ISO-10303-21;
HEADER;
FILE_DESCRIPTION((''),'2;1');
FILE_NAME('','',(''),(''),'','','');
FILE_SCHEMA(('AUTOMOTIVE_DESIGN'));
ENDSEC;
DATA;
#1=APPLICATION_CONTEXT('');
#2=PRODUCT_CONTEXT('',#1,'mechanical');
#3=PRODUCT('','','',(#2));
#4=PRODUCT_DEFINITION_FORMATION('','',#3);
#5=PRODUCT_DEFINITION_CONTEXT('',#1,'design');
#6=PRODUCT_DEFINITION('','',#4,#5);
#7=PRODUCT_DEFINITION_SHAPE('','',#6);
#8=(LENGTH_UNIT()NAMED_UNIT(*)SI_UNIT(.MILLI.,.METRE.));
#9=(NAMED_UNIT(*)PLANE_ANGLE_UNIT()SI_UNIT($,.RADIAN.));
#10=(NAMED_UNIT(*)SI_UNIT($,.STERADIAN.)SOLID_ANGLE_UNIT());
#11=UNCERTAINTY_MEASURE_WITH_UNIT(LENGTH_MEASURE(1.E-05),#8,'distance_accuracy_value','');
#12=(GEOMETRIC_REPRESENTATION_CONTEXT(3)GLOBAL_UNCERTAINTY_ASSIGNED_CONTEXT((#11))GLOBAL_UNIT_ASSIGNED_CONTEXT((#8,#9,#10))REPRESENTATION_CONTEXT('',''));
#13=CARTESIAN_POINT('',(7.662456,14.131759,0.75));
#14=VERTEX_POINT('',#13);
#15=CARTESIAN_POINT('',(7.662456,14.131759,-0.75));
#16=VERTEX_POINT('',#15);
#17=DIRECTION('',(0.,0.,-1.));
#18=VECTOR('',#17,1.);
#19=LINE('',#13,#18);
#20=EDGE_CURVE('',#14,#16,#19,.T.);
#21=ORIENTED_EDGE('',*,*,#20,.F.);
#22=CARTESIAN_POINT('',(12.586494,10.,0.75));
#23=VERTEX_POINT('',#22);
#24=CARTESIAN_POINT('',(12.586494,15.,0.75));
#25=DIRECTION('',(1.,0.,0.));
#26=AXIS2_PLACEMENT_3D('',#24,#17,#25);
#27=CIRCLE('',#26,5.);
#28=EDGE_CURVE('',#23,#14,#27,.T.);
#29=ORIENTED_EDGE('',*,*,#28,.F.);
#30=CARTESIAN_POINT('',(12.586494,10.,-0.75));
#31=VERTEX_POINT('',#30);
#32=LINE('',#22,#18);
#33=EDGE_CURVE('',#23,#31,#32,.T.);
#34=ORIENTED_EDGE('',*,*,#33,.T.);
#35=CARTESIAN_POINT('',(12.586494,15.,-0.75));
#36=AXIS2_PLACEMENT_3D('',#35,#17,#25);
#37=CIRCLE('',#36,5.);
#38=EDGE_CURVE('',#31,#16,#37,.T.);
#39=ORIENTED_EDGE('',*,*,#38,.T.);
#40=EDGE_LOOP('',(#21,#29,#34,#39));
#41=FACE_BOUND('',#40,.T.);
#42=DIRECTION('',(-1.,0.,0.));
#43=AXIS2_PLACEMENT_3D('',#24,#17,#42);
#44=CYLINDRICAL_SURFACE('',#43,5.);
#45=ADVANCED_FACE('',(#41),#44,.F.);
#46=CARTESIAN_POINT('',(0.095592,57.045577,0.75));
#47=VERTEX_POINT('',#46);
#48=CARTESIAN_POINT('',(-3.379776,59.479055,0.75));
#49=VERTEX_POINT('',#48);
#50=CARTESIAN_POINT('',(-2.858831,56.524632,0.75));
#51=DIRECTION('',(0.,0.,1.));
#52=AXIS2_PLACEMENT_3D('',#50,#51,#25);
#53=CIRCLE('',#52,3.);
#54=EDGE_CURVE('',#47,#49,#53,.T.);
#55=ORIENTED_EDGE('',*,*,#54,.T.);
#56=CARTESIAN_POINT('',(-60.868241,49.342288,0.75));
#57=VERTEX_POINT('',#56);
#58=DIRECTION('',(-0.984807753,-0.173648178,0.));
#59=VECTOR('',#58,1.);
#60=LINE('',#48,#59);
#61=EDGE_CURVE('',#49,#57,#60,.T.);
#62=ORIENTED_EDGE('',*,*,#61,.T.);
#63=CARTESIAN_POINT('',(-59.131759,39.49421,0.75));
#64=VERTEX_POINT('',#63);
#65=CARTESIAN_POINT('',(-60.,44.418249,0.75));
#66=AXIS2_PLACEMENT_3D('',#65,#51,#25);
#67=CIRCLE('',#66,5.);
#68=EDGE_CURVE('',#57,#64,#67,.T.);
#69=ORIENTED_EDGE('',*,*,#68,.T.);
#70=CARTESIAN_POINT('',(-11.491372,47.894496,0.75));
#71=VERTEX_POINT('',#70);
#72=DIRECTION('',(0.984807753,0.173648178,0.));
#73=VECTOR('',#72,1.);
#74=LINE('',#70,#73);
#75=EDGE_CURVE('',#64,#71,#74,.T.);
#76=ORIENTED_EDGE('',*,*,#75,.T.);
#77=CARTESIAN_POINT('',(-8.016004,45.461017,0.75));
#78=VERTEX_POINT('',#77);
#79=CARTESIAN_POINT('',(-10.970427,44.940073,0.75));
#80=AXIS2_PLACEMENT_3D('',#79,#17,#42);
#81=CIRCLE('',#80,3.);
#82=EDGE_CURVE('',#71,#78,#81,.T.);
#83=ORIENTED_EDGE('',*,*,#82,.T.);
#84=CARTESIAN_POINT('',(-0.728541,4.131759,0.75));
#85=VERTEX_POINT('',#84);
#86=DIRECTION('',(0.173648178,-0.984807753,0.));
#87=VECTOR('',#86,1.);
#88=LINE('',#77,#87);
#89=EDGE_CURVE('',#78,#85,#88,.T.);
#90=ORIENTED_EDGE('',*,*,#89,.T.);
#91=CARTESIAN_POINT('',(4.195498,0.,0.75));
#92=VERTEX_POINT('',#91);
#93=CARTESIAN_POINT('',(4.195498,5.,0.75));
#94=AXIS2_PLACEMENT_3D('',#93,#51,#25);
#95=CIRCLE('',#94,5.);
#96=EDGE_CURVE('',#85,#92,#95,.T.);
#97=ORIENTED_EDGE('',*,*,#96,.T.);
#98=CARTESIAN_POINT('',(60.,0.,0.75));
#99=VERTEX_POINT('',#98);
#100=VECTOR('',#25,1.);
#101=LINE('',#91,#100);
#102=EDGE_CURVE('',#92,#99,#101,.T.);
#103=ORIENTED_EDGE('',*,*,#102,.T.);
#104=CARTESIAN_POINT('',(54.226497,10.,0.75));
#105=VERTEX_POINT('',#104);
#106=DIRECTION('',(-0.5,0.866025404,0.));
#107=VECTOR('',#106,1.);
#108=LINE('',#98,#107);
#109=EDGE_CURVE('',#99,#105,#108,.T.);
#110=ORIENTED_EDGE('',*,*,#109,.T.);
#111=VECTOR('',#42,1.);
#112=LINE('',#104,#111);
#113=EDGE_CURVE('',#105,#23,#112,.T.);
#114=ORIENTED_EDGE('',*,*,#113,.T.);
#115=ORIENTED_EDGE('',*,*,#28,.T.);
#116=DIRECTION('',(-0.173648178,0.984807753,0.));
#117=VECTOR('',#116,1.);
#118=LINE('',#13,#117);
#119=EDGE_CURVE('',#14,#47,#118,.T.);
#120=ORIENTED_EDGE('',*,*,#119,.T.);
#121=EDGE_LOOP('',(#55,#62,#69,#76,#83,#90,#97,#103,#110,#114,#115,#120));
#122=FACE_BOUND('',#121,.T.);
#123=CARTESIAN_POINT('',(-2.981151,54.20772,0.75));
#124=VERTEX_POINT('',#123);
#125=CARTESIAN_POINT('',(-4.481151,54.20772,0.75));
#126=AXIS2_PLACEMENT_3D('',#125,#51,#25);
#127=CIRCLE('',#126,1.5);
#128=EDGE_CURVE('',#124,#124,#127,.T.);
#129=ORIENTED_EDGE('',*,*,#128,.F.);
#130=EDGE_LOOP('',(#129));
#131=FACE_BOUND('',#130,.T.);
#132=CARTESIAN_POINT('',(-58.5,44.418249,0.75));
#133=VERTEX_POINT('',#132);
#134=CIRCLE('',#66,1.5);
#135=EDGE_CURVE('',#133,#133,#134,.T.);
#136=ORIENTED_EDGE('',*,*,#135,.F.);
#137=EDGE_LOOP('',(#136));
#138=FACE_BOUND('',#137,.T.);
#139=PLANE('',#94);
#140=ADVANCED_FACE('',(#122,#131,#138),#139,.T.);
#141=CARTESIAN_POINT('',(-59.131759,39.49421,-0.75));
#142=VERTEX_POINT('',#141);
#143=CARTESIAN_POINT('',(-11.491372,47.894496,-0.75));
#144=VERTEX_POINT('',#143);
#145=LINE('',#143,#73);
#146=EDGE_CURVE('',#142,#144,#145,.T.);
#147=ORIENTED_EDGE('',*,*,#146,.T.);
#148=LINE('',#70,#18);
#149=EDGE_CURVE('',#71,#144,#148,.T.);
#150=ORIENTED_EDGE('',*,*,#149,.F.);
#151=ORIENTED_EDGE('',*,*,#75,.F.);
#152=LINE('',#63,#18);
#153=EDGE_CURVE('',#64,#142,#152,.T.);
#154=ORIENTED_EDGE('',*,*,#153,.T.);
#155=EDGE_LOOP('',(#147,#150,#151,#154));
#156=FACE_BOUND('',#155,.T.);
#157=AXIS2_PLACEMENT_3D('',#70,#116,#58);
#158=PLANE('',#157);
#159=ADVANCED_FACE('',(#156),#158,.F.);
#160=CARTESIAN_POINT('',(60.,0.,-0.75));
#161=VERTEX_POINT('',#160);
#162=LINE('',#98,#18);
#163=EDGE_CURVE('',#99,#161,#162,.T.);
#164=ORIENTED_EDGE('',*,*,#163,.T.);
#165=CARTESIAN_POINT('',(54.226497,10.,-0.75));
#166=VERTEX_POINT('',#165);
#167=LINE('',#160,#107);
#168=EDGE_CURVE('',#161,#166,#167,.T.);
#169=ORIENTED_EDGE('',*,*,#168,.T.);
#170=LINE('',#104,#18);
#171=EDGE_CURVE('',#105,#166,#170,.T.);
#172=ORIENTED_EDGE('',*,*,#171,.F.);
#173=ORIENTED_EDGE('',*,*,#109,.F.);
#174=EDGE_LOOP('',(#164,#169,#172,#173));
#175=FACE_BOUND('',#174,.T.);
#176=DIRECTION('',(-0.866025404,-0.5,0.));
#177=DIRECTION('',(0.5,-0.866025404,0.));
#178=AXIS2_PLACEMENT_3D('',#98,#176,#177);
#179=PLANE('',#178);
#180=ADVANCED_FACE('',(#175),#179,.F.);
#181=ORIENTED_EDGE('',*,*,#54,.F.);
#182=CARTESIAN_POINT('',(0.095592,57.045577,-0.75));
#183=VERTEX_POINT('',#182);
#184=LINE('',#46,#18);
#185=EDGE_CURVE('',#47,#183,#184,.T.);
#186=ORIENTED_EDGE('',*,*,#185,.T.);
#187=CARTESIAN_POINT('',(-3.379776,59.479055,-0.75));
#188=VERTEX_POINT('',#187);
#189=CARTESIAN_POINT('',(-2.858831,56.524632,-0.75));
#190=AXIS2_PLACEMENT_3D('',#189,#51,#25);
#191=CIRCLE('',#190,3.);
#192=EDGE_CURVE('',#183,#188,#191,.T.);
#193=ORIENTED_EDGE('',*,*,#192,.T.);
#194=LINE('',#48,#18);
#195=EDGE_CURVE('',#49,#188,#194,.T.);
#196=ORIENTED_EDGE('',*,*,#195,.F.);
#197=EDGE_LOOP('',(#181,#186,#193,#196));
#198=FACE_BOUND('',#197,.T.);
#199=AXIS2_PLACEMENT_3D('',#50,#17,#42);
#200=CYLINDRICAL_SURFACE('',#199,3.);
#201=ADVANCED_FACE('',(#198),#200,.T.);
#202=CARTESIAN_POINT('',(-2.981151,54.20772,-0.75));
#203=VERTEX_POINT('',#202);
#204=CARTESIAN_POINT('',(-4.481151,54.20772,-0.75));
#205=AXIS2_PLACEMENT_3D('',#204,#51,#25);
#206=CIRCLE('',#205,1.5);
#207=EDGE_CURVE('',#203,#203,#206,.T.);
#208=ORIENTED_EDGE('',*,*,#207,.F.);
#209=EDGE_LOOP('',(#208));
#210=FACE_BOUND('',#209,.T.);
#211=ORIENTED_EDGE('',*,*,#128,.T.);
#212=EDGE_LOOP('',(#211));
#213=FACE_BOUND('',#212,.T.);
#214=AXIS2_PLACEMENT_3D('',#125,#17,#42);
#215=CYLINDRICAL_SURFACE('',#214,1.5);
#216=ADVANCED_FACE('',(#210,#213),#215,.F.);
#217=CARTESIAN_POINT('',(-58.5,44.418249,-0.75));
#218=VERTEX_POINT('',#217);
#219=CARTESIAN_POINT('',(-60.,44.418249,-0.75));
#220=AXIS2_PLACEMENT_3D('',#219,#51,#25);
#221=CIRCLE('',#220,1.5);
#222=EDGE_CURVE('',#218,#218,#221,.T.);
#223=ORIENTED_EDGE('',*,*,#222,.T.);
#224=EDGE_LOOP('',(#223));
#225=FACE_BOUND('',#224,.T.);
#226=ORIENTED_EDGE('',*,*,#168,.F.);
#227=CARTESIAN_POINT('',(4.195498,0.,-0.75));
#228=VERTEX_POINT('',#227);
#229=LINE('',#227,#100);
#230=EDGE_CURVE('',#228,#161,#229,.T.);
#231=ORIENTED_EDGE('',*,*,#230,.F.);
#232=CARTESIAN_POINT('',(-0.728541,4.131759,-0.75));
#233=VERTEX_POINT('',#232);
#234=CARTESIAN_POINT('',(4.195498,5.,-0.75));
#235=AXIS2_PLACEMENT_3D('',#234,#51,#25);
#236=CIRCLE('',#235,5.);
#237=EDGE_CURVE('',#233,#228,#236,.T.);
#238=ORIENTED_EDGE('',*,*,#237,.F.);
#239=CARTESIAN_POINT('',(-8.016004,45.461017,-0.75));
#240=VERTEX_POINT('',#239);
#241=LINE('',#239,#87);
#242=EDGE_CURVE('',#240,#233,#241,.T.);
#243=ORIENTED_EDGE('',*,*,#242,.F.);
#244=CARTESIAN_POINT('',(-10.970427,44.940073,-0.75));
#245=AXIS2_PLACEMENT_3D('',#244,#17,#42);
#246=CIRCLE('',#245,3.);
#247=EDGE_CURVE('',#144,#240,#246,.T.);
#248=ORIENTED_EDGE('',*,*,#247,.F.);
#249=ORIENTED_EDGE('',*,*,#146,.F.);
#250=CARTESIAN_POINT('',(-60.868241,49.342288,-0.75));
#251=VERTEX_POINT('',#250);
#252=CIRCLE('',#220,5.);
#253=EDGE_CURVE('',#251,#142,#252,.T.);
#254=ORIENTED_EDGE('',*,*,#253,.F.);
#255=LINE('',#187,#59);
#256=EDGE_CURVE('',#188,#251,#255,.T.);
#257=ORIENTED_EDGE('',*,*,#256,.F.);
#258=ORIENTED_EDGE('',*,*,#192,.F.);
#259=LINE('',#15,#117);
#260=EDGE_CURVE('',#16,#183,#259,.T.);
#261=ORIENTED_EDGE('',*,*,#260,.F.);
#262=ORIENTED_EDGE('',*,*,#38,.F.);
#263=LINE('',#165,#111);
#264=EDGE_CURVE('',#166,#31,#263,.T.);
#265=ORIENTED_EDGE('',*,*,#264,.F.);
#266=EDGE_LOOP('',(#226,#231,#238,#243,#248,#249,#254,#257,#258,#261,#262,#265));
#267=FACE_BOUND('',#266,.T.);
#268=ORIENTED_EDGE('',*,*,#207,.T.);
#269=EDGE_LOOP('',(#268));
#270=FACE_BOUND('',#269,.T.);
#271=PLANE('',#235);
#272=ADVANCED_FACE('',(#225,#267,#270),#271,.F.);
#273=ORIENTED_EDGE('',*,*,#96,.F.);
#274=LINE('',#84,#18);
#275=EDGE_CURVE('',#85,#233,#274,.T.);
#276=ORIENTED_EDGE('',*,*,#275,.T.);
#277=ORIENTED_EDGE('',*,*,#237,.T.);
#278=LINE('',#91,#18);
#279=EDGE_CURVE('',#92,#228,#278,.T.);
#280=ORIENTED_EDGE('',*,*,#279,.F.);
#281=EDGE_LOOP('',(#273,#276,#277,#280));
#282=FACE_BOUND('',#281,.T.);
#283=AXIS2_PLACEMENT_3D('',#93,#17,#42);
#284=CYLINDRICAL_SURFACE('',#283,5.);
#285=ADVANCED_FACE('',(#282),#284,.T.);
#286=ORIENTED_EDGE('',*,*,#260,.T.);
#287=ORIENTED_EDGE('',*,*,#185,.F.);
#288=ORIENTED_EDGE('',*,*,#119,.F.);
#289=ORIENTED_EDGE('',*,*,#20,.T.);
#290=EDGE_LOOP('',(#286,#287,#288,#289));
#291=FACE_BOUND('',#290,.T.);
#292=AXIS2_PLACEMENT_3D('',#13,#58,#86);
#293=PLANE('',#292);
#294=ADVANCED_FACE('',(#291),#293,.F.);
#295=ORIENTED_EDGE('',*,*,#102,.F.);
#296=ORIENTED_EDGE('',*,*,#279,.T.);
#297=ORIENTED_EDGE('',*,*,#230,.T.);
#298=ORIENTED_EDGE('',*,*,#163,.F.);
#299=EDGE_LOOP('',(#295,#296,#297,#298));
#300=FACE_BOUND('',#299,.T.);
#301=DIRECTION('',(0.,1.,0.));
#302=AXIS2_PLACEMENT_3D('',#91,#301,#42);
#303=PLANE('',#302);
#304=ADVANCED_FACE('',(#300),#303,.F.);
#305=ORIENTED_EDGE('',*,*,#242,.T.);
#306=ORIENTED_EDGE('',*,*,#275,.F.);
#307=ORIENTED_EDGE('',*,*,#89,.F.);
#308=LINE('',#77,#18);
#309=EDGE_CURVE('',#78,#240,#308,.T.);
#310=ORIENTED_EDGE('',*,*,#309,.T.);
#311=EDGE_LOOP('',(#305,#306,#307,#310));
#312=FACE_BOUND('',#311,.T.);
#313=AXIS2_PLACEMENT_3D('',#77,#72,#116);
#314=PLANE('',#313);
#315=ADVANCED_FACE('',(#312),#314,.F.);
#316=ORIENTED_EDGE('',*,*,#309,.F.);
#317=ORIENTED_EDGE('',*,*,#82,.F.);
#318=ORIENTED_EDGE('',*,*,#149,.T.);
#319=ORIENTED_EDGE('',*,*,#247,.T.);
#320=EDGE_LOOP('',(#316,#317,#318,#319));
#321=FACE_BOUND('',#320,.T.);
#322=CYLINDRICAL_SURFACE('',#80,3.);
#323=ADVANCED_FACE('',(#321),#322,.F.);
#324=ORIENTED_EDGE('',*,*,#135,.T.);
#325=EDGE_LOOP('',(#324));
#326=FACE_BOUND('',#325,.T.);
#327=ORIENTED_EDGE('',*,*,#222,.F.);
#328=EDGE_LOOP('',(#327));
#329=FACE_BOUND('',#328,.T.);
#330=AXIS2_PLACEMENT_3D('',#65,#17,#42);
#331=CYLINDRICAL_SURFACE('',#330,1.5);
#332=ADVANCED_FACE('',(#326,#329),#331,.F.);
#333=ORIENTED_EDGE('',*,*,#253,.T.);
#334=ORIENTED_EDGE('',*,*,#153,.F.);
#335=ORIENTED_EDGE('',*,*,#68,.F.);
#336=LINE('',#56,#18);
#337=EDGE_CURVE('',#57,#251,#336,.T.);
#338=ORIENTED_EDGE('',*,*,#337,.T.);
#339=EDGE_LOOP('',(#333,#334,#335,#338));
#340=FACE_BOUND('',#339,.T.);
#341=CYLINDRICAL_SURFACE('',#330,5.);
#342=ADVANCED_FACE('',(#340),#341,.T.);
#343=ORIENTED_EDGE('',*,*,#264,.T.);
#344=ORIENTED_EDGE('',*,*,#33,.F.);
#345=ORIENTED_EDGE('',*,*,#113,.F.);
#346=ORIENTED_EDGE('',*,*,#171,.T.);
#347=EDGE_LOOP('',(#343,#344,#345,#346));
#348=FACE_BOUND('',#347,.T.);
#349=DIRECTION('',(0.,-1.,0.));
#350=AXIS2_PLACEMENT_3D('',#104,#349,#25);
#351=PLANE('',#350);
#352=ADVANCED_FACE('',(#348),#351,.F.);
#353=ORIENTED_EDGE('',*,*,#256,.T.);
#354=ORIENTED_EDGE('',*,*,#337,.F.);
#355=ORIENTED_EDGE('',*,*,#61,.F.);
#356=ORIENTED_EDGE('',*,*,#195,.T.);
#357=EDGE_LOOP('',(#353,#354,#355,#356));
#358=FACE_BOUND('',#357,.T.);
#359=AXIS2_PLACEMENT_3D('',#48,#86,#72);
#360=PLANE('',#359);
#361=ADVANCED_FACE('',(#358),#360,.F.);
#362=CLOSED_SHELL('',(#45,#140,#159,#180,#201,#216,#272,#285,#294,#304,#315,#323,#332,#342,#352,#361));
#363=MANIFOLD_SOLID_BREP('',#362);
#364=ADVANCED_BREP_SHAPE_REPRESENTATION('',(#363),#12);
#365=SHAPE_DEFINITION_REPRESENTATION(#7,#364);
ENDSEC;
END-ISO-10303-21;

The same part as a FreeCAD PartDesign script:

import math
import FreeCAD as App
import Part
import Sketcher
from FreeCAD import Vector
Q = App.Units.Quantity

doc = App.newDocument("Part")
params = doc.addObject("Spreadsheet::Sheet", "Params")
for row, (alias, value) in enumerate([
    ("sketch1_diameter", "3 mm"),
    ("sketch1_radius", "5 mm"),
    ("sketch1_radius2", "3 mm"),
    ("pad1_length", "1.5 mm"),
], start=1):
    params.set(f"A{row}", alias)
    params.set(f"B{row}", "=" + value)
    params.setAlias(f"B{row}", alias)

body = doc.addObject("PartDesign::Body", "Body")

# Sketch on XY plane
sketch1 = doc.addObject("Sketcher::SketchObject", "Sketch")
body.addObject(sketch1)
sketch1.AttachmentSupport = (doc.XY_Plane, [""])
sketch1.MapMode = "FlatFace"
sketch1.addGeometry(Part.LineSegment(Vector(4.2, 0, 0), Vector(60, 0, 0)), False)
sketch1.addGeometry(Part.LineSegment(Vector(60, 0, 0), Vector(54.2, 10, 0)), False)
sketch1.addGeometry(Part.LineSegment(Vector(54.2, 10, 0), Vector(12.6, 10, 0)), False)
sketch1.addGeometry(Part.ArcOfCircle(Part.Circle(Vector(12.6, 15, 0), Vector(0, 0, 1), 5), math.radians(-170), math.radians(-90)), False)
sketch1.addGeometry(Part.LineSegment(Vector(7.7, 14.1, 0), Vector(0.1, 57, 0)), False)
sketch1.addGeometry(Part.ArcOfCircle(Part.Circle(Vector(-2.9, 56.5, 0), Vector(0, 0, 1), 3), math.radians(10), math.radians(100)), False)
sketch1.addGeometry(Part.LineSegment(Vector(-3.4, 59.5, 0), Vector(-60.9, 49.3, 0)), False)
sketch1.addGeometry(Part.ArcOfCircle(Part.Circle(Vector(-60, 44.4, 0), Vector(0, 0, 1), 5), math.radians(100), math.radians(280)), False)
sketch1.addGeometry(Part.LineSegment(Vector(-59.1, 39.5, 0), Vector(-11.5, 47.9, 0)), False)
sketch1.addGeometry(Part.ArcOfCircle(Part.Circle(Vector(-11, 44.9, 0), Vector(0, 0, 1), 3), math.radians(10), math.radians(100)), False)
sketch1.addGeometry(Part.LineSegment(Vector(-8, 45.5, 0), Vector(-0.7, 4.1, 0)), False)
sketch1.addGeometry(Part.ArcOfCircle(Part.Circle(Vector(4.2, 5, 0), Vector(0, 0, 1), 5), math.radians(-170), math.radians(-90)), False)
sketch1.addGeometry(Part.Circle(Vector(-60, 44.4, 0), Vector(0, 0, 1), 1.5), False)
sketch1.addGeometry(Part.Circle(Vector(-4.5, 54.2, 0), Vector(0, 0, 1), 1.5), False)
sketch1.addConstraint(Sketcher.Constraint("Coincident", 0, 2, 1, 1))
sketch1.addConstraint(Sketcher.Constraint("Coincident", 1, 2, 2, 1))
sketch1.addConstraint(Sketcher.Constraint("Tangent", 2, 2, 3, 2))
sketch1.addConstraint(Sketcher.Constraint("Tangent", 3, 1, 4, 1))
sketch1.addConstraint(Sketcher.Constraint("Tangent", 4, 2, 5, 1))
sketch1.addConstraint(Sketcher.Constraint("Tangent", 5, 2, 6, 1))
sketch1.addConstraint(Sketcher.Constraint("Tangent", 6, 2, 7, 1))
sketch1.addConstraint(Sketcher.Constraint("Tangent", 7, 2, 8, 1))
sketch1.addConstraint(Sketcher.Constraint("Tangent", 8, 2, 9, 2))
sketch1.addConstraint(Sketcher.Constraint("Tangent", 9, 1, 10, 1))
sketch1.addConstraint(Sketcher.Constraint("Tangent", 10, 2, 11, 1))
sketch1.addConstraint(Sketcher.Constraint("Tangent", 11, 2, 0, 1))
sketch1.addConstraint(Sketcher.Constraint("Horizontal", 0))
sketch1.addConstraint(Sketcher.Constraint("Horizontal", 2))
sketch1.addConstraint(Sketcher.Constraint("Coincident", 12, 3, 7, 3))
sketch1.addConstraint(Sketcher.Constraint("Equal", 3, 7))
sketch1.addConstraint(Sketcher.Constraint("Equal", 5, 9))
sketch1.addConstraint(Sketcher.Constraint("Equal", 7, 11))
sketch1.addConstraint(Sketcher.Constraint("Equal", 12, 13))
sketch1.addConstraint(Sketcher.Constraint("PointOnObject", 0, 2, -1))
sketch1.addConstraint(Sketcher.Constraint("Perpendicular", 4, 6))
sketch1.addConstraint(Sketcher.Constraint("Parallel", 6, 8))
sketch1.addConstraint(Sketcher.Constraint("Perpendicular", 8, 10))
sketch1.addConstraint(Sketcher.Constraint("Diameter", 12, Q("3 mm")))
sketch1.addConstraint(Sketcher.Constraint("Radius", 3, Q("5 mm")))
sketch1.addConstraint(Sketcher.Constraint("Radius", 5, Q("3 mm")))
sketch1.addConstraint(Sketcher.Constraint("Angle", 1, Q("120 deg")))
sketch1.addConstraint(Sketcher.Constraint("Angle", 4, Q("100 deg")))
sketch1.addConstraint(Sketcher.Constraint("DistanceY", -1, 1, 3, 3, Q("15 mm")))
sketch1.addConstraint(Sketcher.Constraint("DistanceX", 7, 3, -1, 1, Q("60 mm")))
sketch1.addConstraint(Sketcher.Constraint("DistanceX", -1, 1, 0, 2, Q("60 mm")))
sketch1.addConstraint(Sketcher.Constraint("DistanceX", 0, 1, 0, 2, Q("55.804502 mm")))
sketch1.addConstraint(Sketcher.Constraint("Distance", 10, Q("41.966829 mm")))
sketch1.addConstraint(Sketcher.Constraint("DistanceX", 2, 2, 2, 1, Q("41.640003 mm")))
sketch1.addConstraint(Sketcher.Constraint("DistanceX", 13, 3, -1, 1, Q("4.481151 mm")))
sketch1.addConstraint(Sketcher.Constraint("DistanceY", -1, 1, 13, 3, Q("54.20772 mm")))
sketch1.setExpression("Constraints[23]", "Params.sketch1_diameter")
sketch1.setExpression("Constraints[24]", "Params.sketch1_radius")
sketch1.setExpression("Constraints[25]", "Params.sketch1_radius2")
pad1 = doc.addObject("PartDesign::Pad", "Pad")
body.addObject(pad1)
pad1.Profile = sketch1
pad1.setExpression("Length", "Params.pad1_length")
pad1.Midplane = True

doc.recompute()
